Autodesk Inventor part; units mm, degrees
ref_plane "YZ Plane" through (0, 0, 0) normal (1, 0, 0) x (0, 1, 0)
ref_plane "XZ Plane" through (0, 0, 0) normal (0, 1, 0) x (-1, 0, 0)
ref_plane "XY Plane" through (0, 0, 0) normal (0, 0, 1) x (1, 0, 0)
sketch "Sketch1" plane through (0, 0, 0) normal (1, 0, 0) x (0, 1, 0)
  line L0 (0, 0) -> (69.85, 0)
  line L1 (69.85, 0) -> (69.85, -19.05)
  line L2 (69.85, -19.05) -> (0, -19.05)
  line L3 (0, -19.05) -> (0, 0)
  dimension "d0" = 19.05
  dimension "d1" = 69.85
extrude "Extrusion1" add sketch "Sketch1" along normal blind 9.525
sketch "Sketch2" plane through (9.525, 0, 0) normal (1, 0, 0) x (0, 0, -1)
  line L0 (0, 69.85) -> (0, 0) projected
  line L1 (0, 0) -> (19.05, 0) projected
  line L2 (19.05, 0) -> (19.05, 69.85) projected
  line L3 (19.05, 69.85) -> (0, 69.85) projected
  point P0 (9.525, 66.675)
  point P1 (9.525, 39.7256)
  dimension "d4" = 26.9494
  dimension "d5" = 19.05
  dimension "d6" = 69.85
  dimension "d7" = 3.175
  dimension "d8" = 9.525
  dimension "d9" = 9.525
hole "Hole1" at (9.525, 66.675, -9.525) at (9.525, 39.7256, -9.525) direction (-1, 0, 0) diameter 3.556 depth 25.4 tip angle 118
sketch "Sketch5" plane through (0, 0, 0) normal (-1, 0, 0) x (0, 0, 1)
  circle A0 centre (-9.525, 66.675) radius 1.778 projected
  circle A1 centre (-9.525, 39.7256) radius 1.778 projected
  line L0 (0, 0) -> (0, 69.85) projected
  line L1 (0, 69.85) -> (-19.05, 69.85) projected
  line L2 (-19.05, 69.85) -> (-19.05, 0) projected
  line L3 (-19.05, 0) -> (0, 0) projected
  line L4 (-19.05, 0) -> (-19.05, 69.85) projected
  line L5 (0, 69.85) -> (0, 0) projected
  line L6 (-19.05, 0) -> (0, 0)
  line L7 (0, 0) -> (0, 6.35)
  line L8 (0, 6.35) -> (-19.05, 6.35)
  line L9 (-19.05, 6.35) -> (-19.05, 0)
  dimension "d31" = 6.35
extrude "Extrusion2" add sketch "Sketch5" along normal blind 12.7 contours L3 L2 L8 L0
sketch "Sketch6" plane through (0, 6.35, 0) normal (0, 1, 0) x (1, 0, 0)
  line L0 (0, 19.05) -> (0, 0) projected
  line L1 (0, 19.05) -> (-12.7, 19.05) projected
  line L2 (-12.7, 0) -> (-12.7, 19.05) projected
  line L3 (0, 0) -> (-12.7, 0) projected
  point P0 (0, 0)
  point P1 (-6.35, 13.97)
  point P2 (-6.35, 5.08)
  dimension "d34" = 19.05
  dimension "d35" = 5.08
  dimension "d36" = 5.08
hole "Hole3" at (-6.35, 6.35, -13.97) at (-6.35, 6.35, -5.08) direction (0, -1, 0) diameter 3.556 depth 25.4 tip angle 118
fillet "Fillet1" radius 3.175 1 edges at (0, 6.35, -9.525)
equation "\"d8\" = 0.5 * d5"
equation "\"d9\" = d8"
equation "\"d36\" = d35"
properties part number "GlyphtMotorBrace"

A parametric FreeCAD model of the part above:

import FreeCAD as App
import Part
import Sketcher
Q = App.Units.Quantity


def edges_at(feature, points):
    """Names of the edges that pass closest to the given points."""
    edges = feature.Shape.Edges
    near = lambda p: min(range(len(edges)), key=lambda i: edges[i].distToShape(Part.Vertex(*p))[0])
    return sorted({f"Edge{near(p) + 1}" for p in points})

doc = App.newDocument("Part")
body = doc.addObject("PartDesign::Body", "Body")

# Sketch on YZ plane
sketch1 = body.newObject("Sketcher::SketchObject", "Sketch")
sketch1.AttachmentSupport = (doc.getObject("YZ_Plane"), [""])
sketch1.MapMode = "FlatFace"
sketch1.addGeometry([
    Part.LineSegment(App.Vector(69.85, 0, 0), App.Vector(0, 0, 0)),
    Part.LineSegment(App.Vector(0, 0, 0), App.Vector(0, -19.05, 0)),
    Part.LineSegment(App.Vector(0, -19.05, 0), App.Vector(69.85, -19.05, 0)),
    Part.LineSegment(App.Vector(69.85, -19.05, 0), App.Vector(69.85, 0, 0)),
], False)
sketch1.addConstraint([
    Sketcher.Constraint("Coincident", 0, 2, 1, 1),
    Sketcher.Constraint("Coincident", 1, 2, 2, 1),
    Sketcher.Constraint("Coincident", 2, 2, 3, 1),
    Sketcher.Constraint("Coincident", 3, 2, 0, 1),
    Sketcher.Constraint("Horizontal", 0),
    Sketcher.Constraint("Vertical", 1),
    Sketcher.Constraint("Horizontal", 2),
    Sketcher.Constraint("Vertical", 3),
    Sketcher.Constraint("Coincident", 0, 2, -1, 1),
    Sketcher.Constraint("DistanceX", 0, 2, 0, 1, Q("2.75 in")),
    Sketcher.Constraint("DistanceY", 1, 2, 1, 1, Q("0.75 in")),
])
pad1 = body.newObject("PartDesign::Pad", "Pad")
pad1.Profile = sketch1
pad1.Length = Q("0.375 in")

# Sketch on YZ plane
sketch2 = body.newObject("Sketcher::SketchObject", "Sketch001")
sketch2.AttachmentSupport = (doc.getObject("YZ_Plane"), [""])
sketch2.MapMode = "FlatFace"
sketch2.AttachmentOffset = App.Placement(App.Vector(0, 0, 0.375 * 25.4), App.Rotation())
sketch2.addGeometry([
    Part.Circle(App.Vector(66.675, -9.525, 0), App.Vector(0, 0, 1), 1.778),
    Part.Circle(App.Vector(39.7256, -9.525, 0), App.Vector(0, 0, 1), 1.778),
], False)
sketch2.addConstraint([
    Sketcher.Constraint("Equal", 0, 1),
    Sketcher.Constraint("Horizontal", 0, 3, 1, 3),
    Sketcher.Constraint("Diameter", 0, Q("0.14 in")),
    Sketcher.Constraint("DistanceX", -1, 1, 0, 3, Q("2.625 in")),
    Sketcher.Constraint("DistanceY", 0, 3, -1, 1, Q("0.375 in")),
    Sketcher.Constraint("DistanceX", -1, 1, 1, 3, Q("1.564 in")),
])
doc.recompute()
hole = body.newObject("PartDesign::Hole", "Hole")
hole.Profile = sketch2
hole.ThreadType = "None"
hole.Diameter = Q("0.14 in")
hole.DepthType = "Dimension"
hole.Depth = Q("1 in")
hole.DrillPoint = "Angled"
hole.DrillPointAngle = 118

# Sketch on YZ plane
sketch3 = body.newObject("Sketcher::SketchObject", "Sketch002")
sketch3.AttachmentSupport = (doc.getObject("YZ_Plane"), [""])
sketch3.MapMode = "FlatFace"
sketch3.addGeometry([
    Part.LineSegment(App.Vector(0, -19.05, 0), App.Vector(0, 0, 0)),
    Part.LineSegment(App.Vector(0, 0, 0), App.Vector(6.35, 0, 0)),
    Part.LineSegment(App.Vector(6.35, 0, 0), App.Vector(6.35, -19.05, 0)),
    Part.LineSegment(App.Vector(6.35, -19.05, 0), App.Vector(0, -19.05, 0)),
], False)
sketch3.addConstraint([
    Sketcher.Constraint("Coincident", 0, 2, 1, 1),
    Sketcher.Constraint("Coincident", 1, 2, 2, 1),
    Sketcher.Constraint("Coincident", 2, 2, 3, 1),
    Sketcher.Constraint("Coincident", 3, 2, 0, 1),
    Sketcher.Constraint("Vertical", 0),
    Sketcher.Constraint("Horizontal", 1),
    Sketcher.Constraint("Vertical", 2),
    Sketcher.Constraint("Horizontal", 3),
    Sketcher.Constraint("Coincident", 0, 2, -1, 1),
    Sketcher.Constraint("DistanceX", 1, 1, 1, 2, Q("0.25 in")),
    Sketcher.Constraint("DistanceY", 0, 1, 0, 2, Q("0.75 in")),
])
pad2 = body.newObject("PartDesign::Pad", "Pad001")
pad2.Profile = sketch3
pad2.Length = Q("0.5 in")
pad2.Reversed = True

# Sketch on XZ plane
sketch4 = body.newObject("Sketcher::SketchObject", "Sketch003")
sketch4.AttachmentSupport = (doc.getObject("XZ_Plane"), [""])
sketch4.MapMode = "FlatFace"
sketch4.AttachmentOffset = App.Placement(App.Vector(0, 0, -0.25 * 25.4), App.Rotation())
sketch4.addGeometry([
    Part.Circle(App.Vector(-6.35, -13.97, 0), App.Vector(0, 0, 1), 1.778),
    Part.Circle(App.Vector(-6.35, -5.08, 0), App.Vector(0, 0, 1), 1.778),
], False)
sketch4.addConstraint([
    Sketcher.Constraint("Equal", 0, 1),
    Sketcher.Constraint("Vertical", 0, 3, 1, 3),
    Sketcher.Constraint("Diameter", 0, Q("0.14 in")),
    Sketcher.Constraint("DistanceY", 1, 3, -1, 1, Q("0.2 in")),
    Sketcher.Constraint("DistanceX", 0, 3, -1, 1, Q("0.25 in")),
    Sketcher.Constraint("DistanceY", 0, 3, -1, 1, Q("0.55 in")),
])
doc.recompute()
hole2 = body.newObject("PartDesign::Hole", "Hole001")
hole2.Profile = sketch4
hole2.ThreadType = "None"
hole2.Diameter = Q("0.14 in")
hole2.DepthType = "Dimension"
hole2.Depth = Q("1 in")
hole2.DrillPoint = "Angled"
hole2.DrillPointAngle = 118
hole2.Reversed = True
doc.recompute()

fillet = body.newObject("PartDesign::Fillet", "Fillet")
fillet.Base = (hole2, edges_at(hole2, [(0, 6.35, -9.525)]))
fillet.Radius = Q("0.125 in")

doc.recompute()
